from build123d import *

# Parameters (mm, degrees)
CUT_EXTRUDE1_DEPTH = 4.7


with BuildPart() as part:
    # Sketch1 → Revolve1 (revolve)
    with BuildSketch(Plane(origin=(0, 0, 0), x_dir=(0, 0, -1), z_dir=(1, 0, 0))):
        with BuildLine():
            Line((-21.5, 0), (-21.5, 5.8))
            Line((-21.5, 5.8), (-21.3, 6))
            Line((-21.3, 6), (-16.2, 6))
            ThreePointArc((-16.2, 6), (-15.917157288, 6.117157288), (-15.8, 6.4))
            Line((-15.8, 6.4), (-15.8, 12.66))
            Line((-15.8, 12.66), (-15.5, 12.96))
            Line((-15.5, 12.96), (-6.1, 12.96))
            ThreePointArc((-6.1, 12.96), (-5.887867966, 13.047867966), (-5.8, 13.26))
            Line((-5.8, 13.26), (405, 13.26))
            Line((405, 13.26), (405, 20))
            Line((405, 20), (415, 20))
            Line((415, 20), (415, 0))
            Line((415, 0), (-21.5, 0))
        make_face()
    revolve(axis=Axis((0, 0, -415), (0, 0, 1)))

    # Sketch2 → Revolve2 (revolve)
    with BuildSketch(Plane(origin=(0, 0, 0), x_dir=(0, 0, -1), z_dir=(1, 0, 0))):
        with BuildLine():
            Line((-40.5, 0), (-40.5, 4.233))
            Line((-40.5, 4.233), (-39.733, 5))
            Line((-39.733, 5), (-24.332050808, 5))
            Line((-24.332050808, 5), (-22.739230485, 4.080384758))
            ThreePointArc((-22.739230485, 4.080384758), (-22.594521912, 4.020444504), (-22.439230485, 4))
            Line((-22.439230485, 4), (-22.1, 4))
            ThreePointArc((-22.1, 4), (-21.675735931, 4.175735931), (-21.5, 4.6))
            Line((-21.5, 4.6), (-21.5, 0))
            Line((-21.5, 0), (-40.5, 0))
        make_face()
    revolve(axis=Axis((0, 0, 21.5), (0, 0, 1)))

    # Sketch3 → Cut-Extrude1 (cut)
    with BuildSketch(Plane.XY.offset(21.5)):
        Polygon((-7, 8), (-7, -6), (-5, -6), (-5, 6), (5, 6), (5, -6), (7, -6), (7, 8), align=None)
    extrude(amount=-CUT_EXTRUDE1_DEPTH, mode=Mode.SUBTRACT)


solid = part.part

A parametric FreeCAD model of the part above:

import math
import FreeCAD as App
import Part
import Sketcher

V = App.Vector
Q = App.Units.Quantity

doc = App.newDocument("Part")
params = doc.addObject("Spreadsheet::Sheet", "Params")
for row, (alias, value) in enumerate([
    ("sketch1_radius", "0.3 mm"),
    ("sketch1_radius2", "0.4 mm"),
    ("sketch1_width", "20 mm"),
    ("sketch1_height", "10 mm"),
    ("sketch1_width2", "5.8 mm"),
    ("revolution_angle", "360 deg"),
    ("sketch2_radius", "0.6 mm"),
    ("sketch2_height", "19 mm"),
    ("sketch2_width", "4.6 mm"),
    ("revolution2_angle", "360 deg"),
    ("sketch3_width", "2 mm"),
    ("sketch3_width2", "10 mm"),
    ("sketch3_height", "12 mm"),
    ("pocket1_length", "4.7 mm"),
], start=1):
    params.set(f"A{row}", alias)
    params.set(f"B{row}", "=" + value)
    params.setAlias(f"B{row}", alias)

body = doc.addObject("PartDesign::Body", "Body")

# Sketch on YZ plane
sketch1 = body.newObject("Sketcher::SketchObject", "Sketch")
sketch1.AttachmentSupport = (doc.getObject("YZ_Plane"), [""])
sketch1.MapMode = "FlatFace"
sketch1.addGeometry(Part.LineSegment(V(5.8, 21.5, 0), V(0, 21.5, 0)), False)
sketch1.addGeometry(Part.LineSegment(V(0, 21.5, 0), V(0, -415, 0)), False)
sketch1.addGeometry(Part.LineSegment(V(0, -415, 0), V(20, -415, 0)), False)
sketch1.addGeometry(Part.LineSegment(V(20, -415, 0), V(20, -405, 0)), False)
sketch1.addGeometry(Part.LineSegment(V(20, -405, 0), V(13.26, -405, 0)), False)
sketch1.addGeometry(Part.LineSegment(V(13.26, -405, 0), V(13.26, 5.8, 0)), False)
sketch1.addGeometry(Part.ArcOfCircle(Part.Circle(V(13.26, 6.1, 0), V(0, 0, 1), 0.3), math.radians(-180), math.radians(-90)), False)
sketch1.addGeometry(Part.LineSegment(V(12.96, 6.1, 0), V(12.96, 15.5, 0)), False)
sketch1.addGeometry(Part.LineSegment(V(12.96, 15.5, 0), V(12.66, 15.8, 0)), False)
sketch1.addGeometry(Part.LineSegment(V(12.66, 15.8, 0), V(6.4, 15.8, 0)), False)
sketch1.addGeometry(Part.ArcOfCircle(Part.Circle(V(6.4, 16.2, 0), V(0, 0, 1), 0.4), math.radians(-180), math.radians(-90)), False)
sketch1.addGeometry(Part.LineSegment(V(6, 16.2, 0), V(6, 21.3, 0)), False)
sketch1.addGeometry(Part.LineSegment(V(6, 21.3, 0), V(5.8, 21.5, 0)), False)
sketch1.addConstraint(Sketcher.Constraint("Coincident", 0, 2, 1, 1))
sketch1.addConstraint(Sketcher.Constraint("Coincident", 1, 2, 2, 1))
sketch1.addConstraint(Sketcher.Constraint("Coincident", 2, 2, 3, 1))
sketch1.addConstraint(Sketcher.Constraint("Coincident", 3, 2, 4, 1))
sketch1.addConstraint(Sketcher.Constraint("Coincident", 4, 2, 5, 1))
sketch1.addConstraint(Sketcher.Constraint("Coincident", 5, 2, 6, 2))
sketch1.addConstraint(Sketcher.Constraint("Tangent", 6, 1, 7, 1))
sketch1.addConstraint(Sketcher.Constraint("Coincident", 7, 2, 8, 1))
sketch1.addConstraint(Sketcher.Constraint("Coincident", 8, 2, 9, 1))
sketch1.addConstraint(Sketcher.Constraint("Tangent", 9, 2, 10, 2))
sketch1.addConstraint(Sketcher.Constraint("Tangent", 10, 1, 11, 1))
sketch1.addConstraint(Sketcher.Constraint("Coincident", 11, 2, 12, 1))
sketch1.addConstraint(Sketcher.Constraint("Coincident", 12, 2, 0, 1))
sketch1.addConstraint(Sketcher.Constraint("Horizontal", 0))
sketch1.addConstraint(Sketcher.Constraint("Vertical", 1))
sketch1.addConstraint(Sketcher.Constraint("Horizontal", 2))
sketch1.addConstraint(Sketcher.Constraint("Vertical", 3))
sketch1.addConstraint(Sketcher.Constraint("Horizontal", 4))
sketch1.addConstraint(Sketcher.Constraint("Vertical", 5))
sketch1.addConstraint(Sketcher.Constraint("Vertical", 7))
sketch1.addConstraint(Sketcher.Constraint("Horizontal", 9))
sketch1.addConstraint(Sketcher.Constraint("Vertical", 11))
sketch1.addConstraint(Sketcher.Constraint("PointOnObject", 0, 2, -2))
sketch1.addConstraint(Sketcher.Constraint("Parallel", 8, 12))
sketch1.addConstraint(Sketcher.Constraint("Vertical", 6, 3, 4, 2))
sketch1.addConstraint(Sketcher.Constraint("Radius", 6, 0.3))
sketch1.addConstraint(Sketcher.Constraint("Radius", 10, 0.4))
sketch1.addConstraint(Sketcher.Constraint("DistanceX", 2, 1, 2, 2, 20.0))
sketch1.addConstraint(Sketcher.Constraint("DistanceY", 3, 1, 3, 2, 10.0))
sketch1.addConstraint(Sketcher.Constraint("Angle", 8, Q("135 deg")))
sketch1.addConstraint(Sketcher.Constraint("DistanceX", 0, 2, 0, 1, 5.8))
sketch1.addConstraint(Sketcher.Constraint("DistanceY", 1, 2, 1, 1, 436.5))
sketch1.addConstraint(Sketcher.Constraint("DistanceY", 5, 1, 5, 2, 410.8))
sketch1.addConstraint(Sketcher.Constraint("DistanceY", 7, 1, 7, 2, 9.4))
sketch1.addConstraint(Sketcher.Constraint("DistanceY", 11, 1, 11, 2, 5.1))
sketch1.addConstraint(Sketcher.Constraint("DistanceY", 1, 2, -1, 1, 415.0))
sketch1.addConstraint(Sketcher.Constraint("DistanceX", -1, 1, 10, 1, 6.0))
sketch1.addConstraint(Sketcher.Constraint("DistanceX", 4, 2, 4, 1, 6.74))
sketch1.setExpression("Constraints[25]", "Params.sketch1_radius")
sketch1.setExpression("Constraints[26]", "Params.sketch1_radius2")
sketch1.setExpression("Constraints[27]", "Params.sketch1_width")
sketch1.setExpression("Constraints[28]", "Params.sketch1_height")
sketch1.setExpression("Constraints[30]", "Params.sketch1_width2")
revolution = body.newObject("PartDesign::Revolution", "Revolution")
revolution.Profile = sketch1
revolution.ReferenceAxis = (sketch1, ["V_Axis"])
revolution.setExpression("Angle", "Params.revolution_angle")

# Sketch on YZ plane
sketch2 = body.newObject("Sketcher::SketchObject", "Sketch001")
sketch2.AttachmentSupport = (doc.getObject("YZ_Plane"), [""])
sketch2.MapMode = "FlatFace"
sketch2.addGeometry(Part.LineSegment(V(4.233, 40.5, 0), V(0, 40.5, 0)), False)
sketch2.addGeometry(Part.LineSegment(V(0, 40.5, 0), V(0, 21.5, 0)), False)
sketch2.addGeometry(Part.LineSegment(V(0, 21.5, 0), V(4.6, 21.5, 0)), False)
sketch2.addGeometry(Part.ArcOfCircle(Part.Circle(V(4.6, 22.1, 0), V(0, 0, 1), 0.6), math.radians(180), math.radians(270)), False)
sketch2.addGeometry(Part.LineSegment(V(4, 22.1, 0), V(4, 22.43923, 0)), False)
sketch2.addGeometry(Part.ArcOfCircle(Part.Circle(V(4.6, 22.43923, 0), V(0, 0, 1), 0.6), math.radians(150), math.radians(180)), False)
sketch2.addGeometry(Part.LineSegment(V(4.080385, 22.73923, 0), V(5, 24.332051, 0)), False)
sketch2.addGeometry(Part.LineSegment(V(5, 24.332051, 0), V(5, 39.733, 0)), False)
sketch2.addGeometry(Part.LineSegment(V(5, 39.733, 0), V(4.233, 40.5, 0)), False)
sketch2.addConstraint(Sketcher.Constraint("Coincident", 0, 2, 1, 1))
sketch2.addConstraint(Sketcher.Constraint("Coincident", 1, 2, 2, 1))
sketch2.addConstraint(Sketcher.Constraint("Tangent", 2, 2, 3, 2))
sketch2.addConstraint(Sketcher.Constraint("Tangent", 3, 1, 4, 1))
sketch2.addConstraint(Sketcher.Constraint("Tangent", 4, 2, 5, 2))
sketch2.addConstraint(Sketcher.Constraint("Tangent", 5, 1, 6, 1))
sketch2.addConstraint(Sketcher.Constraint("Coincident", 6, 2, 7, 1))
sketch2.addConstraint(Sketcher.Constraint("Coincident", 7, 2, 8, 1))
sketch2.addConstraint(Sketcher.Constraint("Coincident", 8, 2, 0, 1))
sketch2.addConstraint(Sketcher.Constraint("Horizontal", 0))
sketch2.addConstraint(Sketcher.Constraint("Vertical", 1))
sketch2.addConstraint(Sketcher.Constraint("Horizontal", 2))
sketch2.addConstraint(Sketcher.Constraint("Vertical", 4))
sketch2.addConstraint(Sketcher.Constraint("Vertical", 7))
sketch2.addConstraint(Sketcher.Constraint("Equal", 3, 5))
sketch2.addConstraint(Sketcher.Constraint("PointOnObject", 0, 2, -2))
sketch2.addConstraint(Sketcher.Constraint("Radius", 3, 0.6))
sketch2.addConstraint(Sketcher.Constraint("DistanceY", 1, 2, 1, 1, 19.0))
sketch2.addConstraint(Sketcher.Constraint("Angle", 6, Q("60 deg")))
sketch2.addConstraint(Sketcher.Constraint("Angle", 8, Q("135 deg")))
sketch2.addConstraint(Sketcher.Constraint("DistanceX", 2, 1, 2, 2, 4.6))
sketch2.addConstraint(Sketcher.Constraint("DistanceX", -1, 1, 6, 2, 5.0))
sketch2.addConstraint(Sketcher.Constraint("DistanceY", -1, 1, 3, 3, 22.1))
sketch2.addConstraint(Sketcher.Constraint("DistanceX", 0, 2, 0, 1, 4.233))
sketch2.addConstraint(Sketcher.Constraint("DistanceY", 4, 1, 4, 2, 0.33923))
sketch2.setExpression("Constraints[16]", "Params.sketch2_radius")
sketch2.setExpression("Constraints[17]", "Params.sketch2_height")
sketch2.setExpression("Constraints[20]", "Params.sketch2_width")
revolution2 = body.newObject("PartDesign::Revolution", "Revolution001")
revolution2.Profile = sketch2
revolution2.ReferenceAxis = (sketch2, ["V_Axis"])
revolution2.setExpression("Angle", "Params.revolution2_angle")

# Sketch on XY plane
sketch3 = body.newObject("Sketcher::SketchObject", "Sketch002")
sketch3.AttachmentSupport = (doc.getObject("XY_Plane"), [""])
sketch3.MapMode = "FlatFace"
sketch3.AttachmentOffset = App.Placement(V(0, 0, 21.5), App.Rotation())
sketch3.addGeometry(Part.LineSegment(V(-7, 8, 0), V(-7, -6, 0)), False)
sketch3.addGeometry(Part.LineSegment(V(-7, -6, 0), V(-5, -6, 0)), False)
sketch3.addGeometry(Part.LineSegment(V(-5, -6, 0), V(-5, 6, 0)), False)
sketch3.addGeometry(Part.LineSegment(V(-5, 6, 0), V(5, 6, 0)), False)
sketch3.addGeometry(Part.LineSegment(V(5, 6, 0), V(5, -6, 0)), False)
sketch3.addGeometry(Part.LineSegment(V(5, -6, 0), V(7, -6, 0)), False)
sketch3.addGeometry(Part.LineSegment(V(7, -6, 0), V(7, 8, 0)), False)
sketch3.addGeometry(Part.LineSegment(V(7, 8, 0), V(-7, 8, 0)), False)
sketch3.addConstraint(Sketcher.Constraint("Coincident", 0, 2, 1, 1))
sketch3.addConstraint(Sketcher.Constraint("Coincident", 1, 2, 2, 1))
sketch3.addConstraint(Sketcher.Constraint("Coincident", 2, 2, 3, 1))
sketch3.addConstraint(Sketcher.Constraint("Coincident", 3, 2, 4, 1))
sketch3.addConstraint(Sketcher.Constraint("Coincident", 4, 2, 5, 1))
sketch3.addConstraint(Sketcher.Constraint("Coincident", 5, 2, 6, 1))
sketch3.addConstraint(Sketcher.Constraint("Coincident", 6, 2, 7, 1))
sketch3.addConstraint(Sketcher.Constraint("Coincident", 7, 2, 0, 1))
sketch3.addConstraint(Sketcher.Constraint("Vertical", 0))
sketch3.addConstraint(Sketcher.Constraint("Horizontal", 1))
sketch3.addConstraint(Sketcher.Constraint("Vertical", 2))
sketch3.addConstraint(Sketcher.Constraint("Horizontal", 3))
sketch3.addConstraint(Sketcher.Constraint("Vertical", 4))
sketch3.addConstraint(Sketcher.Constraint("Horizontal", 5))
sketch3.addConstraint(Sketcher.Constraint("Vertical", 6))
sketch3.addConstraint(Sketcher.Constraint("Horizontal", 7))
sketch3.addConstraint(Sketcher.Constraint("Symmetric", 1, 2, 3, 2, -1, 1))
sketch3.addConstraint(Sketcher.Constraint("Symmetric", 0, 2, 5, 2, -2))
sketch3.addConstraint(Sketcher.Constraint("Equal", 7, 0))
sketch3.addConstraint(Sketcher.Constraint("DistanceX", 1, 1, 1, 2, 2.0))
sketch3.addConstraint(Sketcher.Constraint("DistanceX", 3, 1, 3, 2, 10.0))
sketch3.addConstraint(Sketcher.Constraint("DistanceY", 2, 1, 2, 2, 12.0))
sketch3.setExpression("Constraints[19]", "Params.sketch3_width")
sketch3.setExpression("Constraints[20]", "Params.sketch3_width2")
sketch3.setExpression("Constraints[21]", "Params.sketch3_height")
pocket1 = body.newObject("PartDesign::Pocket", "Pocket")
pocket1.Profile = sketch3
pocket1.setExpression("Length", "Params.pocket1_length")

doc.recompute()
